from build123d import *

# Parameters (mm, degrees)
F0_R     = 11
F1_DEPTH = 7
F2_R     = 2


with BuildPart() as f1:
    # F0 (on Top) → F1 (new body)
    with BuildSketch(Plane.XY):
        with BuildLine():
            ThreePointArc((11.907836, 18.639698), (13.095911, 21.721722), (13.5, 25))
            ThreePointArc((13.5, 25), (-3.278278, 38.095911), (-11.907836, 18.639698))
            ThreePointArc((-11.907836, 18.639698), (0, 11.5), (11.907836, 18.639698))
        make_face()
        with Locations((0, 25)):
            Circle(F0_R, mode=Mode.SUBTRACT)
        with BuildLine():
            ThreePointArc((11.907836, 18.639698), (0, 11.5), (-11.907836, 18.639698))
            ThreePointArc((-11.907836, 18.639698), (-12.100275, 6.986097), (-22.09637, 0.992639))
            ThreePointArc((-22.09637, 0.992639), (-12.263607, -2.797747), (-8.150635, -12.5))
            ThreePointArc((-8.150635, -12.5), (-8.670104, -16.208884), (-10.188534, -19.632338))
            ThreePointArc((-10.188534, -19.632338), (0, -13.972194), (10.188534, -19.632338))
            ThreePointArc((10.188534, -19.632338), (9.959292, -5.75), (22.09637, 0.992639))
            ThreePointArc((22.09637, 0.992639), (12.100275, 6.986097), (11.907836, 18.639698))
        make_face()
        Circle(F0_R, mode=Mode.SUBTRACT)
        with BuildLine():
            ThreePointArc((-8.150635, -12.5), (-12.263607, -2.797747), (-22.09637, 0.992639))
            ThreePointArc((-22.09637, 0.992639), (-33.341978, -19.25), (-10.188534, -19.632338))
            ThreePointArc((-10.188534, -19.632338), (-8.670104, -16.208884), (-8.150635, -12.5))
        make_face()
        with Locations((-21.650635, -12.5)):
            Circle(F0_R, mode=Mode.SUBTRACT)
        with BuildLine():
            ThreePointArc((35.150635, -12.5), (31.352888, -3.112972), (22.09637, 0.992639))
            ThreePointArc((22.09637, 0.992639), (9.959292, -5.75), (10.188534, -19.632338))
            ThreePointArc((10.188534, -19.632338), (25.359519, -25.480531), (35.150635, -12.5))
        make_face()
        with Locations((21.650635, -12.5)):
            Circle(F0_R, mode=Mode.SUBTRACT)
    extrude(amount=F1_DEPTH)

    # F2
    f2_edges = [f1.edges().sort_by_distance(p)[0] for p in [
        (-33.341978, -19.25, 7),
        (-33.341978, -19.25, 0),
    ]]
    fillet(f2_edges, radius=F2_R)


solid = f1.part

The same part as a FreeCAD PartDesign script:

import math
import FreeCAD as App
import Part
import Sketcher
from FreeCAD import Vector
Q = App.Units.Quantity


def edges_at(feature, points):
    """Names of the edges that pass closest to the given points."""
    edges = feature.Shape.Edges
    near = lambda p: min(range(len(edges)), key=lambda i: edges[i].distToShape(Part.Vertex(*p))[0])
    return sorted({f"Edge{near(p) + 1}" for p in points})

doc = App.newDocument("Part")
body = doc.addObject("PartDesign::Body", "Body")

# Sketch on XY plane
sketch1 = body.newObject("Sketcher::SketchObject", "Sketch")
sketch1.AttachmentSupport = (doc.getObject("XY_Plane"), [""])
sketch1.MapMode = "FlatFace"
sketch1.addGeometry([
    Part.ArcOfCircle(Part.Circle(Vector(0, 25, 0), Vector(0, 0, 1), 14), math.radians(-28), math.radians(0)),  # 0
    Part.ArcOfCircle(Part.Circle(Vector(0, 25, 0), Vector(0, 0, 1), 13), math.radians(0), math.radians(208)),  # 1
    Part.ArcOfCircle(Part.Circle(Vector(-22, 13, 0), Vector(0, 0, 1), 12), math.radians(-88), math.radians(28)),  # 2
    Part.ArcOfCircle(Part.Circle(Vector(-22, -13, 0), Vector(0, 0, 1), 13), math.radians(92), math.radians(328)),  # 3
    Part.ArcOfCircle(Part.Circle(Vector(0, -26, 0), Vector(0, 0, 1), 12), math.radians(32), math.radians(148)),  # 4
    Part.ArcOfCircle(Part.Circle(Vector(22, -13, 0), Vector(0, 0, 1), 14), math.radians(-148), math.radians(0)),  # 5
    Part.ArcOfCircle(Part.Circle(Vector(22, -12, 0), Vector(0, 0, 1), 13), math.radians(0), math.radians(88)),  # 6
    Part.ArcOfCircle(Part.Circle(Vector(22, 13, 0), Vector(0, 0, 1), 12), math.radians(152), math.radians(268)),  # 7
    Part.Circle(Vector(-22, -12, 0), Vector(0, 0, 1), 11),  # 8
    Part.Circle(Vector(22, -12, 0), Vector(0, 0, 1), 11),  # 9
    Part.Circle(Vector(0, 0, 0), Vector(0, 0, 1), 11),  # 10
    Part.Circle(Vector(0, 25, 0), Vector(0, 0, 1), 11),  # 11
], False)
sketch1.addConstraint([
    Sketcher.Constraint("Tangent", 0, 2, 1, 1),
    Sketcher.Constraint("Tangent", 1, 2, 2, 2),
    Sketcher.Constraint("Tangent", 2, 1, 3, 1),
    Sketcher.Constraint("Tangent", 3, 2, 4, 2),
    Sketcher.Constraint("Tangent", 4, 1, 5, 1),
    Sketcher.Constraint("Tangent", 5, 2, 6, 1),
    Sketcher.Constraint("Tangent", 6, 2, 7, 2),
    Sketcher.Constraint("Tangent", 7, 1, 0, 1),
    Sketcher.Constraint("Coincident", 10, 3, -1, 1),
    Sketcher.Constraint("Coincident", 8, 3, 3, 3),
    Sketcher.Constraint("Coincident", 9, 3, 5, 3),
    Sketcher.Constraint("Coincident", 11, 3, 1, 3),
    Sketcher.Constraint("Equal", 1, 3),
    Sketcher.Constraint("Equal", 2, 4),
    Sketcher.Constraint("Equal", 3, 5),
    Sketcher.Constraint("Equal", 5, 6),
    Sketcher.Constraint("Equal", 4, 7),
    Sketcher.Constraint("Equal", 8, 9),
    Sketcher.Constraint("Equal", 9, 10),
    Sketcher.Constraint("Equal", 10, 11),
    Sketcher.Constraint("Symmetric", 3, 3, 5, 3, -2),
    Sketcher.Constraint("Symmetric", 1, 2, 7, 1, -2),
    Sketcher.Constraint("Horizontal", 11, 3, 0, 2),
    Sketcher.Constraint("Horizontal", 9, 3, 5, 2),
    Sketcher.Constraint("Diameter", 8, Q("22 mm")),
    Sketcher.Constraint("Radius", 2, Q("12.000001 mm")),
    Sketcher.Constraint("Radius", 1, Q("13.5 mm")),
    Sketcher.Constraint("DistanceY", -1, 1, 1, 3, Q("25 mm")),
    Sketcher.Constraint("DistanceY", 3, 3, -1, 1, Q("12.5 mm")),
    Sketcher.Constraint("DistanceX", 3, 3, 3, 2, Q("11.462101 mm")),
])
pad1 = body.newObject("PartDesign::Pad", "Pad")
pad1.Profile = sketch1
pad1.Length = 7
doc.recompute()

fillet = body.newObject("PartDesign::Fillet", "Fillet")
fillet.Base = (pad1, edges_at(pad1, [(-33.342, -19.25, 7), (-33.342, -19.25, 0)]))
fillet.Radius = 2

doc.recompute()
